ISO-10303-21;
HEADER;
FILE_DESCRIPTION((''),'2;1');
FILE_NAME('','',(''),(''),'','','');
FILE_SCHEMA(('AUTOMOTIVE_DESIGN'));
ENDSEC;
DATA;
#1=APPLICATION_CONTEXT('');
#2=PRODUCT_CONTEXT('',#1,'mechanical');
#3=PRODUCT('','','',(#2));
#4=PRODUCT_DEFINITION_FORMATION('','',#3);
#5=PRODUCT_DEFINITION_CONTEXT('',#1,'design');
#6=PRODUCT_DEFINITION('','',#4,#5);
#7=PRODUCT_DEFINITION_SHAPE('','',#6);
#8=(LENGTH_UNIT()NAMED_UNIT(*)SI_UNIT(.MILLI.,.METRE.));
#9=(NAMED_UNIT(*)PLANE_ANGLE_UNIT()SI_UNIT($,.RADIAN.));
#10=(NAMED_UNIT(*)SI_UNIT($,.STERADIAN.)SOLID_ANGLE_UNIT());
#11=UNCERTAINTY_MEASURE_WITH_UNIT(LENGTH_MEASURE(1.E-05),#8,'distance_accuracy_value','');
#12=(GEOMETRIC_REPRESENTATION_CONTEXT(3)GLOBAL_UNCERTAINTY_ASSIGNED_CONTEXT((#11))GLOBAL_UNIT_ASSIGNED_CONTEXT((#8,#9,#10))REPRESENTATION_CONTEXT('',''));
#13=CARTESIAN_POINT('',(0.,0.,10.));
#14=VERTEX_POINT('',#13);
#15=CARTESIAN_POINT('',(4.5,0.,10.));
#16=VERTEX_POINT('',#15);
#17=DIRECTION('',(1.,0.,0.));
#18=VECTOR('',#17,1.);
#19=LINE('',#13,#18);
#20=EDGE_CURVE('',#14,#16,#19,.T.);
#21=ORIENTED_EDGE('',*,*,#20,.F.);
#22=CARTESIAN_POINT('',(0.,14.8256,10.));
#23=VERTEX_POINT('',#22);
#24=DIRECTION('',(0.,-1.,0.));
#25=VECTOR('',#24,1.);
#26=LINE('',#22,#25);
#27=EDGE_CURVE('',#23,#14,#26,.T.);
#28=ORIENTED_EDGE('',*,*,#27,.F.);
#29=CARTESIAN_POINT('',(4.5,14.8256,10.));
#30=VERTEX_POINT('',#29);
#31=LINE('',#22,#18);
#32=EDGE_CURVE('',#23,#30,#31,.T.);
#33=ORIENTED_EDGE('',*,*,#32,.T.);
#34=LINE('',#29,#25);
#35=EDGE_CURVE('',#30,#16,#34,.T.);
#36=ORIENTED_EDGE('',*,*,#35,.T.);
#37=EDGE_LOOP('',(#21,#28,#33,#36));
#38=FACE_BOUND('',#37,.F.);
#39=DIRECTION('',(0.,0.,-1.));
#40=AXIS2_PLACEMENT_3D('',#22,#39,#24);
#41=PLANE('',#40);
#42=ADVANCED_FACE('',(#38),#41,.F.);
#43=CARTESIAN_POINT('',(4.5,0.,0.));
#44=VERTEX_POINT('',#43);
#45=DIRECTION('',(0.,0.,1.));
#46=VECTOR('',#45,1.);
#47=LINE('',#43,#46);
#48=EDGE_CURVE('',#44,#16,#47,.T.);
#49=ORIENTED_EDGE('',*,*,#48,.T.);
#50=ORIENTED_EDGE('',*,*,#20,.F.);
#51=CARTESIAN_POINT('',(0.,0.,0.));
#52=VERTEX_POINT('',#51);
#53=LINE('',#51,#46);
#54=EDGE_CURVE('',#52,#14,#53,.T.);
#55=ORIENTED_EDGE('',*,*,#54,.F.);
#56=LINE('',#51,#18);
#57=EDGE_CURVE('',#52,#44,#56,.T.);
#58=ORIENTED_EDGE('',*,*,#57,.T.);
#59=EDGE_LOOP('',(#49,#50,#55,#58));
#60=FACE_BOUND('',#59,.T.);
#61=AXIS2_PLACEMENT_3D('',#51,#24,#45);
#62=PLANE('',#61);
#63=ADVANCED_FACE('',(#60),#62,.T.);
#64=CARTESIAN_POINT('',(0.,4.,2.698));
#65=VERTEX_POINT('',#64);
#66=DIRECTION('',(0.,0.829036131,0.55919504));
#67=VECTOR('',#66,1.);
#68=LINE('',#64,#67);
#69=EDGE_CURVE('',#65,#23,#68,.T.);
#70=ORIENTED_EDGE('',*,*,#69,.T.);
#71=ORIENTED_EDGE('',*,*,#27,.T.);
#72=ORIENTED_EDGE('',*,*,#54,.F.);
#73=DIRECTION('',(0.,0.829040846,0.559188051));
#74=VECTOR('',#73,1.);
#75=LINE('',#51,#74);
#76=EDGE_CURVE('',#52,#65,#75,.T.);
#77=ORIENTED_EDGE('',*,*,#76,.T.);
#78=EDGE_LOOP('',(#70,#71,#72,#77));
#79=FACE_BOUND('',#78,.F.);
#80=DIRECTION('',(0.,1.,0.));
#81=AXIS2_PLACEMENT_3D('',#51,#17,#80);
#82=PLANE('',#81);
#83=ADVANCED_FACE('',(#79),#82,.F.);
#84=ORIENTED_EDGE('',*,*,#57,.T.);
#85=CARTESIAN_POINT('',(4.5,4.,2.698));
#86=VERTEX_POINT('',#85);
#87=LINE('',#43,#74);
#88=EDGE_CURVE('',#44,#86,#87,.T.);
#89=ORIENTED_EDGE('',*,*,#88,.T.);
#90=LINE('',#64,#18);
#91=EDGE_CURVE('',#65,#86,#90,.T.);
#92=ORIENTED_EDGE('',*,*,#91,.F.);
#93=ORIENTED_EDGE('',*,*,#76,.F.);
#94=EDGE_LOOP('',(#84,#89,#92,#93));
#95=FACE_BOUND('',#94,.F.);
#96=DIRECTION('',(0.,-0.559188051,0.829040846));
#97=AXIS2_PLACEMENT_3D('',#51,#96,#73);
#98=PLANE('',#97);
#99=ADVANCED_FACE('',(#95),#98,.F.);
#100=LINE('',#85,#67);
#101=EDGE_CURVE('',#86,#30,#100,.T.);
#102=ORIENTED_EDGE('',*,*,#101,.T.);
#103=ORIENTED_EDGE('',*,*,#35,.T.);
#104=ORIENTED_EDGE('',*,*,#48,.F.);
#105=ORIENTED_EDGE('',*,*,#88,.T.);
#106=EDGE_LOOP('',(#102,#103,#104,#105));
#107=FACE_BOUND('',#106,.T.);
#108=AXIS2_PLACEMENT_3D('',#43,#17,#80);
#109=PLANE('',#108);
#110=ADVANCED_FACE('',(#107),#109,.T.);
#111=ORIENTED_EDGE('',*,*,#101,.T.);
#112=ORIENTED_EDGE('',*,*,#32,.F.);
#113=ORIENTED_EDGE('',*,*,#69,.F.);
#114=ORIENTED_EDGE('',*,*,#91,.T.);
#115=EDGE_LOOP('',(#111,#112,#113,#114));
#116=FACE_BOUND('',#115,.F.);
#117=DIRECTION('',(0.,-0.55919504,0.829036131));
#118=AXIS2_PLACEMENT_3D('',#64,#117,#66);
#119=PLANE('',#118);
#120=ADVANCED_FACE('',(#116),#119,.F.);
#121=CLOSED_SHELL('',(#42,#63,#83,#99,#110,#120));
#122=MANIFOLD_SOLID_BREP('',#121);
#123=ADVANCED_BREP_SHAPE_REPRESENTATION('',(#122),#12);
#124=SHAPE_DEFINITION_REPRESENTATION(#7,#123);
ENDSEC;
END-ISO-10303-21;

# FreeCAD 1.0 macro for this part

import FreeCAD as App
import Part
import Sketcher
from FreeCAD import Vector
Q = App.Units.Quantity


def add_polygon(sketch, points):
    """Adds a closed chain of lines whose ends are joined by coincident constraints."""
    first, n = sketch.GeometryCount, len(points)
    for a, b in zip(points, points[1:] + points[:1]):
        sketch.addGeometry(Part.LineSegment(App.Vector(*a, 0), App.Vector(*b, 0)), False)
    for i in range(n):
        sketch.addConstraint(Sketcher.Constraint("Coincident", first + i, 2, first + (i + 1) % n, 1))

doc = App.newDocument("Part")
body = doc.addObject("PartDesign::Body", "Body")

# Sketch on YZ plane
sketch1 = body.newObject("Sketcher::SketchObject", "Sketch")
sketch1.AttachmentSupport = (doc.getObject("YZ_Plane"), [""])
sketch1.MapMode = "FlatFace"
add_polygon(sketch1, [(0, 10), (0, 0), (4, 2.7), (14.8, 10)])  # lines 0-3
sketch1.addConstraint([
    Sketcher.Constraint("Vertical", 0),
    Sketcher.Constraint("Horizontal", 3),
    Sketcher.Constraint("Coincident", 0, 2, -1, 1),
    Sketcher.Constraint("Parallel", 1, 2),
    Sketcher.Constraint("DistanceY", 0, 2, 0, 1, Q("10 mm")),
    Sketcher.Constraint("Angle", 1, Q("33.9997 deg")),
    Sketcher.Constraint("DistanceX", -1, 1, 1, 2, Q("4 mm")),
])
pad1 = body.newObject("PartDesign::Pad", "Pad")
pad1.Profile = sketch1
pad1.Length = 4.5

doc.recompute()
